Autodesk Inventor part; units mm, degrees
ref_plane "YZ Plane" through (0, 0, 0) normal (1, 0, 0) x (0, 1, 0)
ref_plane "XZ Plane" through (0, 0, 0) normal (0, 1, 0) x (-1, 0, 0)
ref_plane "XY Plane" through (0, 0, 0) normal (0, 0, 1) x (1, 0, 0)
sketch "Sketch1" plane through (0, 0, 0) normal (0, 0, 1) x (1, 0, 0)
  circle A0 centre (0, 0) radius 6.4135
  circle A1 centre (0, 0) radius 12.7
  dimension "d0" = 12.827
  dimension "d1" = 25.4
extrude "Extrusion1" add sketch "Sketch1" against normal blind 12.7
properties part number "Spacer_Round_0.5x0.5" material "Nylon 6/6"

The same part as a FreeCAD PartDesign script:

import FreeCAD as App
import Part
import Sketcher
from FreeCAD import Vector
Q = App.Units.Quantity

doc = App.newDocument("Part")
params = doc.addObject("Spreadsheet::Sheet", "Params")
for row, (alias, value) in enumerate([
    ("sketch1_diameter", "1 in"),
    ("sketch1_diameter2", "0.505 in"),
    ("pad1_length", "0.5 in"),
], start=1):
    params.set(f"A{row}", alias)
    params.set(f"B{row}", "=" + value)
    params.setAlias(f"B{row}", alias)

body = doc.addObject("PartDesign::Body", "Body")

# Sketch on XY plane
sketch1 = body.newObject("Sketcher::SketchObject", "Sketch")
sketch1.AttachmentSupport = (doc.getObject("XY_Plane"), [""])
sketch1.MapMode = "FlatFace"
sketch1.addGeometry([
    Part.Circle(Vector(0, 0, 0), Vector(0, 0, 1), 13),
    Part.Circle(Vector(0, 0, 0), Vector(0, 0, 1), 6),
], False)
sketch1.addConstraint([
    Sketcher.Constraint("Coincident", 0, 3, -1, 1),
    Sketcher.Constraint("Coincident", 1, 3, -1, 1),
    Sketcher.Constraint("Diameter", 0, Q("1 in")),
    Sketcher.Constraint("Diameter", 1, Q("0.505 in")),
])
sketch1.setExpression("Constraints[2]", "Params.sketch1_diameter")
sketch1.setExpression("Constraints[3]", "Params.sketch1_diameter2")
pad1 = body.newObject("PartDesign::Pad", "Pad")
pad1.Profile = sketch1
pad1.setExpression("Length", "Params.pad1_length")
pad1.Reversed = True

doc.recompute()
